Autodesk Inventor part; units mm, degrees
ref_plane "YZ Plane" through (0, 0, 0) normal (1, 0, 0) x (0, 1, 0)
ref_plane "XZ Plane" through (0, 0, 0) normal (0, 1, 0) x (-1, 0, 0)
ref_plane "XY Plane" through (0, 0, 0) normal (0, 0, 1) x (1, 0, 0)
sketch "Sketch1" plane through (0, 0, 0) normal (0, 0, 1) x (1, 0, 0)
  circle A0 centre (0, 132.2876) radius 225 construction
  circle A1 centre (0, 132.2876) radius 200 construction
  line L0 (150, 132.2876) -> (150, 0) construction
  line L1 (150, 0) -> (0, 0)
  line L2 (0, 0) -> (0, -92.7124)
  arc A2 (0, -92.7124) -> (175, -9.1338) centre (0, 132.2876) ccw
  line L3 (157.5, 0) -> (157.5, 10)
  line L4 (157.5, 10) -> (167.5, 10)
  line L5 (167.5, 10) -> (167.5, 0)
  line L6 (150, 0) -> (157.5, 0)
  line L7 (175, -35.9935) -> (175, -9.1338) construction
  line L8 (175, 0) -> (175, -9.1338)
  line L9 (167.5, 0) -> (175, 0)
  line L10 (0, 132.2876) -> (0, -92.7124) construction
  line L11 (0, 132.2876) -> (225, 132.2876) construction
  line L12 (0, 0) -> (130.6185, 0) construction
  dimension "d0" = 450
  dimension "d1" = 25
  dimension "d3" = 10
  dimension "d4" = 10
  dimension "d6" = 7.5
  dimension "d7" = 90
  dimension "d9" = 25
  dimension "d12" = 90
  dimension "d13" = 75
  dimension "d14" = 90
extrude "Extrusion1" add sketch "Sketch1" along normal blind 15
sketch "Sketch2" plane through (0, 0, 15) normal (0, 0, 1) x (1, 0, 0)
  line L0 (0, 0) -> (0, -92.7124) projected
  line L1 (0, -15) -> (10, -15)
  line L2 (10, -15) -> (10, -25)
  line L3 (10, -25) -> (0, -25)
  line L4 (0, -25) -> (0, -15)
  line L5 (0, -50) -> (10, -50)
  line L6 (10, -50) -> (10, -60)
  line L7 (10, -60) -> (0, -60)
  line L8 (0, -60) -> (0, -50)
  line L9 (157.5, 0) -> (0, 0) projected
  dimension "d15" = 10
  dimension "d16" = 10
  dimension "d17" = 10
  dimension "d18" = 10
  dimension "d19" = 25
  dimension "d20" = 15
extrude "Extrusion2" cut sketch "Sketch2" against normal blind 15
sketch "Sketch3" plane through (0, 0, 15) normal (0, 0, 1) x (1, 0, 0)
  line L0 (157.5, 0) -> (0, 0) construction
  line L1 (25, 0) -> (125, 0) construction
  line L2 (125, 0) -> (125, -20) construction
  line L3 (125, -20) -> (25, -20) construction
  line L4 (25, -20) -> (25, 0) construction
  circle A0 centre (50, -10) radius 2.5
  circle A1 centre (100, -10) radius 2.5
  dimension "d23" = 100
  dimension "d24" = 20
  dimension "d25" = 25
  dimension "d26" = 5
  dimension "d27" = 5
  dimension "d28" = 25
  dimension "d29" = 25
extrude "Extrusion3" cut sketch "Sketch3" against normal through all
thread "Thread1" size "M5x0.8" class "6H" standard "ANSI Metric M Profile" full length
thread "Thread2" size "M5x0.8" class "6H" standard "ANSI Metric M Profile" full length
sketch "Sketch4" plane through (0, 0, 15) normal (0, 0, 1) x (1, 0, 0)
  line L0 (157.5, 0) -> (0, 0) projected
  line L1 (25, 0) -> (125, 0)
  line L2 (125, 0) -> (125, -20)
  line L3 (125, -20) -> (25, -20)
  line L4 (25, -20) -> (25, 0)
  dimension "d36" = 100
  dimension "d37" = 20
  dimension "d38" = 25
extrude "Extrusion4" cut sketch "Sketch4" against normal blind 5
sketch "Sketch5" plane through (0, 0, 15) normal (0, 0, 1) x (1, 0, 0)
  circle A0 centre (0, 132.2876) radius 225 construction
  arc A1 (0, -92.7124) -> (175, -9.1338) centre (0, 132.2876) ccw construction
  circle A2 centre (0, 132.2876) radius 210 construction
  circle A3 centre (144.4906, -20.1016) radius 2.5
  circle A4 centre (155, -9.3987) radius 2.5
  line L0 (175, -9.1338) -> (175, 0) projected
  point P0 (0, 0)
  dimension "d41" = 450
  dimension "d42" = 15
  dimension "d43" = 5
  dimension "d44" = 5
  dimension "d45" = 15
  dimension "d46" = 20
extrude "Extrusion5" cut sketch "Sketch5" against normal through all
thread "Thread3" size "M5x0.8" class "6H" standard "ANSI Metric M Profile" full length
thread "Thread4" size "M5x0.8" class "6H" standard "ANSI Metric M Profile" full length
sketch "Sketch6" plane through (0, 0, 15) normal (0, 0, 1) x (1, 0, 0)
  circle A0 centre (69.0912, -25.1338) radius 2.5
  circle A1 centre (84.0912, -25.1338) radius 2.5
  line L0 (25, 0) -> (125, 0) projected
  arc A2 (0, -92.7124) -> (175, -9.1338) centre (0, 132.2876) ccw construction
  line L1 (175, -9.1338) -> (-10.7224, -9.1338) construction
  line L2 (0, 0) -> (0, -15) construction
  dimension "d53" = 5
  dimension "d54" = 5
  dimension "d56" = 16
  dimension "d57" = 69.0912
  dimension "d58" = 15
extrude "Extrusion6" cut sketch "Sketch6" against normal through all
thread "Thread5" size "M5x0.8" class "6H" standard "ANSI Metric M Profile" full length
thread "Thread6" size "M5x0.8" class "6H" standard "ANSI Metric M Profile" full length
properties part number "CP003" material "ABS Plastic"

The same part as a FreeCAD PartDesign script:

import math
import FreeCAD as App
import Part
import Sketcher
from FreeCAD import Vector


def add_polygon(sketch, points):
    """Adds a closed chain of lines whose ends are joined by coincident constraints."""
    first, n = sketch.GeometryCount, len(points)
    for a, b in zip(points, points[1:] + points[:1]):
        sketch.addGeometry(Part.LineSegment(App.Vector(*a, 0), App.Vector(*b, 0)), False)
    for i in range(n):
        sketch.addConstraint(Sketcher.Constraint("Coincident", first + i, 2, first + (i + 1) % n, 1))

doc = App.newDocument("Part")
body = doc.addObject("PartDesign::Body", "Body")

# Sketch on XY plane
sketch1 = body.newObject("Sketcher::SketchObject", "Sketch")
sketch1.AttachmentSupport = (doc.getObject("XY_Plane"), [""])
sketch1.MapMode = "FlatFace"
sketch1.addGeometry(Part.LineSegment(Vector(158, 0, 0), Vector(0, 0, 0)), False)
sketch1.addGeometry(Part.LineSegment(Vector(0, 0, 0), Vector(0, -93, 0)), False)
sketch1.addGeometry(Part.ArcOfCircle(Part.Circle(Vector(0, 132, 0), Vector(0, 0, 1), 225), math.radians(-90), math.radians(-39)), False)
sketch1.addGeometry(Part.LineSegment(Vector(175, -9, 0), Vector(175, 0, 0)), False)
sketch1.addGeometry(Part.LineSegment(Vector(175, 0, 0), Vector(168, 0, 0)), False)
sketch1.addGeometry(Part.LineSegment(Vector(168, 0, 0), Vector(168, 10, 0)), False)
sketch1.addGeometry(Part.LineSegment(Vector(168, 10, 0), Vector(158, 10, 0)), False)
sketch1.addGeometry(Part.LineSegment(Vector(158, 10, 0), Vector(158, 0, 0)), False)
sketch1.addConstraint(Sketcher.Constraint("Coincident", 0, 2, 1, 1))
sketch1.addConstraint(Sketcher.Constraint("Coincident", 1, 2, 2, 1))
sketch1.addConstraint(Sketcher.Constraint("Coincident", 2, 2, 3, 1))
sketch1.addConstraint(Sketcher.Constraint("Coincident", 3, 2, 4, 1))
sketch1.addConstraint(Sketcher.Constraint("Coincident", 4, 2, 5, 1))
sketch1.addConstraint(Sketcher.Constraint("Coincident", 5, 2, 6, 1))
sketch1.addConstraint(Sketcher.Constraint("Coincident", 6, 2, 7, 1))
sketch1.addConstraint(Sketcher.Constraint("Coincident", 7, 2, 0, 1))
sketch1.addConstraint(Sketcher.Constraint("Horizontal", 0))
sketch1.addConstraint(Sketcher.Constraint("Vertical", 1))
sketch1.addConstraint(Sketcher.Constraint("Vertical", 3))
sketch1.addConstraint(Sketcher.Constraint("Horizontal", 4))
sketch1.addConstraint(Sketcher.Constraint("Vertical", 5))
sketch1.addConstraint(Sketcher.Constraint("Horizontal", 6))
sketch1.addConstraint(Sketcher.Constraint("Vertical", 7))
sketch1.addConstraint(Sketcher.Constraint("Coincident", 0, 2, -1, 1))
sketch1.addConstraint(Sketcher.Constraint("PointOnObject", 2, 3, -2))
sketch1.addConstraint(Sketcher.Constraint("PointOnObject", 3, 2, -1))
sketch1.addConstraint(Sketcher.Constraint("Equal", 6, 5))
sketch1.addConstraint(Sketcher.Constraint("Radius", 2, 225.0))
sketch1.addConstraint(Sketcher.Constraint("DistanceX", 6, 2, 6, 1, 10.0))
sketch1.addConstraint(Sketcher.Constraint("DistanceX", 4, 2, 4, 1, 7.5))
sketch1.addConstraint(Sketcher.Constraint("DistanceX", 0, 2, 0, 1, 157.5))
sketch1.addConstraint(Sketcher.Constraint("DistanceY", 1, 2, 1, 1, 92.7124))
pad1 = body.newObject("PartDesign::Pad", "Pad")
pad1.Profile = sketch1
pad1.Length = 15

# Sketch on XY plane
sketch2 = body.newObject("Sketcher::SketchObject", "Sketch001")
sketch2.AttachmentSupport = (doc.getObject("XY_Plane"), [""])
sketch2.MapMode = "FlatFace"
sketch2.AttachmentOffset = App.Placement(Vector(0, 0, 15), App.Rotation())
add_polygon(sketch2, [(10, -15), (0, -15), (0, -25), (10, -25)])  # lines 0-3
add_polygon(sketch2, [(10, -50), (0, -50), (0, -60), (10, -60)])  # lines 4-7
sketch2.addConstraint(Sketcher.Constraint("Horizontal", 0))
sketch2.addConstraint(Sketcher.Constraint("Vertical", 1))
sketch2.addConstraint(Sketcher.Constraint("Horizontal", 2))
sketch2.addConstraint(Sketcher.Constraint("Vertical", 3))
sketch2.addConstraint(Sketcher.Constraint("Horizontal", 4))
sketch2.addConstraint(Sketcher.Constraint("Vertical", 5))
sketch2.addConstraint(Sketcher.Constraint("Horizontal", 6))
sketch2.addConstraint(Sketcher.Constraint("Vertical", 7))
sketch2.addConstraint(Sketcher.Constraint("PointOnObject", 0, 2, -2))
sketch2.addConstraint(Sketcher.Constraint("PointOnObject", 4, 2, -2))
sketch2.addConstraint(Sketcher.Constraint("Vertical", 3, 2, 6, 2))
sketch2.addConstraint(Sketcher.Constraint("Equal", 6, 1))
sketch2.addConstraint(Sketcher.Constraint("Equal", 3, 5))
sketch2.addConstraint(Sketcher.Constraint("DistanceX", 0, 2, 0, 1, 10.0))
sketch2.addConstraint(Sketcher.Constraint("DistanceY", 0, 2, -1, 1, 15.0))
sketch2.addConstraint(Sketcher.Constraint("DistanceY", 4, 2, 1, 2, 25.0))
pocket1 = body.newObject("PartDesign::Pocket", "Pocket")
pocket1.Profile = sketch2
pocket1.Length = 15

# Sketch on XY plane
sketch3 = body.newObject("Sketcher::SketchObject", "Sketch002")
sketch3.AttachmentSupport = (doc.getObject("XY_Plane"), [""])
sketch3.MapMode = "FlatFace"
sketch3.AttachmentOffset = App.Placement(Vector(0, 0, 15), App.Rotation())
sketch3.addGeometry(Part.Circle(Vector(50, -10, 0), Vector(0, 0, 1), 2.5), False)
sketch3.addGeometry(Part.Circle(Vector(100, -10, 0), Vector(0, 0, 1), 2.5), False)
sketch3.addConstraint(Sketcher.Constraint("Equal", 0, 1))
sketch3.addConstraint(Sketcher.Constraint("Horizontal", 0, 3, 1, 3))
sketch3.addConstraint(Sketcher.Constraint("Diameter", 0, 5.0))
sketch3.addConstraint(Sketcher.Constraint("DistanceX", -1, 1, 1, 3, 100.0))
sketch3.addConstraint(Sketcher.Constraint("DistanceX", -1, 1, 0, 3, 50.0))
sketch3.addConstraint(Sketcher.Constraint("DistanceY", 0, 3, -1, 1, 10.0))
pocket2 = body.newObject("PartDesign::Pocket", "Pocket001")
pocket2.Profile = sketch3
pocket2.Type = "ThroughAll"

# Sketch on XY plane
sketch4 = body.newObject("Sketcher::SketchObject", "Sketch003")
sketch4.AttachmentSupport = (doc.getObject("XY_Plane"), [""])
sketch4.MapMode = "FlatFace"
sketch4.AttachmentOffset = App.Placement(Vector(0, 0, 15), App.Rotation())
add_polygon(sketch4, [(125, -20), (125, 0), (25, 0), (25, -20)])  # lines 0-3
sketch4.addConstraint(Sketcher.Constraint("Vertical", 0))
sketch4.addConstraint(Sketcher.Constraint("Horizontal", 1))
sketch4.addConstraint(Sketcher.Constraint("Vertical", 2))
sketch4.addConstraint(Sketcher.Constraint("Horizontal", 3))
sketch4.addConstraint(Sketcher.Constraint("PointOnObject", 0, 2, -1))
sketch4.addConstraint(Sketcher.Constraint("DistanceX", 1, 2, 1, 1, 100.0))
sketch4.addConstraint(Sketcher.Constraint("DistanceY", 0, 1, 0, 2, 20.0))
sketch4.addConstraint(Sketcher.Constraint("DistanceX", -1, 1, 1, 2, 25.0))
pocket3 = body.newObject("PartDesign::Pocket", "Pocket002")
pocket3.Profile = sketch4
pocket3.Length = 5

# Sketch on XY plane
sketch5 = body.newObject("Sketcher::SketchObject", "Sketch004")
sketch5.AttachmentSupport = (doc.getObject("XY_Plane"), [""])
sketch5.MapMode = "FlatFace"
sketch5.AttachmentOffset = App.Placement(Vector(0, 0, 15), App.Rotation())
sketch5.addGeometry(Part.Circle(Vector(144.5, -20.1, 0), Vector(0, 0, 1), 2.5), False)
sketch5.addGeometry(Part.Circle(Vector(155, -9.4, 0), Vector(0, 0, 1), 2.5), False)
sketch5.addConstraint(Sketcher.Constraint("Equal", 0, 1))
sketch5.addConstraint(Sketcher.Constraint("Diameter", 0, 5.0))
sketch5.addConstraint(Sketcher.Constraint("DistanceX", -1, 1, 1, 3, 155.0))
sketch5.addConstraint(Sketcher.Constraint("DistanceY", 0, 3, 1, 3, 10.703))
sketch5.addConstraint(Sketcher.Constraint("DistanceX", -1, 1, 0, 3, 144.4906))
sketch5.addConstraint(Sketcher.Constraint("DistanceY", 0, 3, -1, 1, 20.1016))
pocket4 = body.newObject("PartDesign::Pocket", "Pocket003")
pocket4.Profile = sketch5
pocket4.Type = "ThroughAll"

# Sketch on XY plane
sketch6 = body.newObject("Sketcher::SketchObject", "Sketch005")
sketch6.AttachmentSupport = (doc.getObject("XY_Plane"), [""])
sketch6.MapMode = "FlatFace"
sketch6.AttachmentOffset = App.Placement(Vector(0, 0, 15), App.Rotation())
sketch6.addGeometry(Part.Circle(Vector(69.1, -25.1, 0), Vector(0, 0, 1), 2.5), False)
sketch6.addGeometry(Part.Circle(Vector(84.1, -25.1, 0), Vector(0, 0, 1), 2.5), False)
sketch6.addConstraint(Sketcher.Constraint("Equal", 0, 1))
sketch6.addConstraint(Sketcher.Constraint("Horizontal", 0, 3, 1, 3))
sketch6.addConstraint(Sketcher.Constraint("Diameter", 0, 5.0))
sketch6.addConstraint(Sketcher.Constraint("DistanceX", 0, 3, 1, 3, 15.0))
sketch6.addConstraint(Sketcher.Constraint("DistanceX", -1, 1, 0, 3, 69.0912))
sketch6.addConstraint(Sketcher.Constraint("DistanceY", 0, 3, -1, 1, 25.1338))
pocket5 = body.newObject("PartDesign::Pocket", "Pocket004")
pocket5.Profile = sketch6
pocket5.Type = "ThroughAll"

doc.recompute()
